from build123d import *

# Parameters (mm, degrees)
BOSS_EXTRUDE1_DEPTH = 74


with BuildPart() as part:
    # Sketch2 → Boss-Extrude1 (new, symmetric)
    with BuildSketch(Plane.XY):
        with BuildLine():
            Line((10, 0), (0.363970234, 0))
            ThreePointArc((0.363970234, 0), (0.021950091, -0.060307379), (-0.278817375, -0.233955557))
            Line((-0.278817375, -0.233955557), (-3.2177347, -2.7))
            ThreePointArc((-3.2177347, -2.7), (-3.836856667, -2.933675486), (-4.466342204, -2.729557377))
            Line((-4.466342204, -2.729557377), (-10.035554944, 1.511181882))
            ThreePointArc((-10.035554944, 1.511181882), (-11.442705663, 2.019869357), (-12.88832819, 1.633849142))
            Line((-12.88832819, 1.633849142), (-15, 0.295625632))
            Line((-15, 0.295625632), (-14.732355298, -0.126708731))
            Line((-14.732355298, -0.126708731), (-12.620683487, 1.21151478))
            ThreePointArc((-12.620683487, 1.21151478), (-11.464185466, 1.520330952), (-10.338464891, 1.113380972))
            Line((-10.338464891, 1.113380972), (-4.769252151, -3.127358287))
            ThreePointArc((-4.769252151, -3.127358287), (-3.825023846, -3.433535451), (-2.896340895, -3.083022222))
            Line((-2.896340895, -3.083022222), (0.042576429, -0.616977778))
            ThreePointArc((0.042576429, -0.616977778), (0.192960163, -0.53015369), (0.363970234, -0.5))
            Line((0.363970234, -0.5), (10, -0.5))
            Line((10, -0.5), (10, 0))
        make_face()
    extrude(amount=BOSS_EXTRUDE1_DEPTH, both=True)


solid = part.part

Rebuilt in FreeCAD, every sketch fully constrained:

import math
import FreeCAD as App
import Part
import Sketcher

V = App.Vector
Q = App.Units.Quantity

doc = App.newDocument("Part")
params = doc.addObject("Spreadsheet::Sheet", "Params")
for row, (alias, value) in enumerate([
    ("sketch1_radius", "1 mm"),
    ("sketch1_radius2", "2 mm"),
    ("sketch1_radius3", "2.5 mm"),
    ("sketch1_length", "7 mm"),
    ("sketch1_length2", "2.5 mm"),
    ("pad1_length", "148 mm"),
], start=1):
    params.set(f"A{row}", alias)
    params.set(f"B{row}", "=" + value)
    params.setAlias(f"B{row}", alias)

body = doc.addObject("PartDesign::Body", "Body")

# Sketch on XY plane
sketch1 = doc.addObject("Sketcher::SketchObject", "Sketch")
body.addObject(sketch1)
sketch1.AttachmentSupport = (doc.XY_Plane, [""])
sketch1.MapMode = "FlatFace"
sketch1.addGeometry([
    Part.LineSegment(V(10, 0, 0), V(0.36, 0, 0)),  # 0
    Part.ArcOfCircle(Part.Circle(V(0.36, -1, 0), V(0, 0, 1), 1), math.radians(90), math.radians(130)),  # 1
    Part.LineSegment(V(-0.28, -0.23, 0), V(-3.22, -2.7, 0)),  # 2
    Part.ArcOfCircle(Part.Circle(V(-3.86, -1.93, 0), V(0, 0, 1), 1), math.radians(-127), math.radians(-50)),  # 3
    Part.LineSegment(V(-4.47, -2.73, 0), V(-10.04, 1.51, 0)),  # 4
    Part.ArcOfCircle(Part.Circle(V(-11.55, -0.48, 0), V(0, 0, 1), 2.5), math.radians(53), math.radians(122)),  # 5
    Part.LineSegment(V(-12.89, 1.63, 0), V(-15, 0.3, 0)),  # 6
    Part.LineSegment(V(-15, 0.3, 0), V(-14.73, -0.13, 0)),  # 7
    Part.LineSegment(V(-14.73, -0.13, 0), V(-12.62, 1.21, 0)),  # 8
    Part.ArcOfCircle(Part.Circle(V(-11.55, -0.48, 0), V(0, 0, 1), 2), math.radians(53), math.radians(122)),  # 9
    Part.LineSegment(V(-10.34, 1.11, 0), V(-4.77, -3.13, 0)),  # 10
    Part.ArcOfCircle(Part.Circle(V(-3.86, -1.93, 0), V(0, 0, 1), 1.5), math.radians(-127), math.radians(-50)),  # 11
    Part.LineSegment(V(-2.9, -3.08, 0), V(0.04, -0.62, 0)),  # 12
    Part.ArcOfCircle(Part.Circle(V(0.36, -1, 0), V(0, 0, 1), 0.5), math.radians(90), math.radians(130)),  # 13
    Part.LineSegment(V(0.36, -0.5, 0), V(10, -0.5, 0)),  # 14
    Part.LineSegment(V(10, -0.5, 0), V(10, 0, 0)),  # 15
], False)
sketch1.addConstraint([
    Sketcher.Constraint("Tangent", 0, 2, 1, 1),
    Sketcher.Constraint("Tangent", 1, 2, 2, 1),
    Sketcher.Constraint("Tangent", 2, 2, 3, 2),
    Sketcher.Constraint("Tangent", 3, 1, 4, 1),
    Sketcher.Constraint("Tangent", 4, 2, 5, 1),
    Sketcher.Constraint("Tangent", 5, 2, 6, 1),
    Sketcher.Constraint("Coincident", 6, 2, 7, 1),
    Sketcher.Constraint("Coincident", 7, 2, 8, 1),
    Sketcher.Constraint("Tangent", 8, 2, 9, 2),
    Sketcher.Constraint("Tangent", 9, 1, 10, 1),
    Sketcher.Constraint("Tangent", 10, 2, 11, 1),
    Sketcher.Constraint("Tangent", 11, 2, 12, 1),
    Sketcher.Constraint("Tangent", 12, 2, 13, 2),
    Sketcher.Constraint("Tangent", 13, 1, 14, 1),
    Sketcher.Constraint("Coincident", 14, 2, 15, 1),
    Sketcher.Constraint("Coincident", 15, 2, 0, 1),
    Sketcher.Constraint("Horizontal", 0),
    Sketcher.Constraint("Horizontal", 14),
    Sketcher.Constraint("Vertical", 15),
    Sketcher.Constraint("Coincident", 9, 3, 5, 3),
    Sketcher.Constraint("Coincident", 11, 3, 3, 3),
    Sketcher.Constraint("Coincident", 13, 3, 1, 3),
    Sketcher.Constraint("Equal", 1, 3),
    Sketcher.Constraint("PointOnObject", 0, 2, -1),
    Sketcher.Constraint("Perpendicular", 6, 7),
    Sketcher.Constraint("Perpendicular", 7, 8),
    Sketcher.Constraint("Parallel", 4, 10),
    Sketcher.Constraint("Parallel", 2, 12),
    Sketcher.Constraint("Radius", 1, Q("1 mm")),
    Sketcher.Constraint("Radius", 9, Q("2 mm")),
    Sketcher.Constraint("Radius", 5, Q("2.5 mm")),
    Sketcher.Constraint("Angle", 2, Q("-140 deg")),
    Sketcher.Constraint("Distance", 4, Q("7 mm")),
    Sketcher.Constraint("DistanceX", 6, 2, -1, 1, Q("15 mm")),
    Sketcher.Constraint("DistanceX", -1, 1, 14, 2, Q("10 mm")),
    Sketcher.Constraint("Distance", 6, Q("2.5 mm")),
    Sketcher.Constraint("DistanceY", 2, 2, -1, 1, Q("2.7 mm")),
    Sketcher.Constraint("DistanceX", 3, 1, 11, 2, Q("1.570001 mm")),
    Sketcher.Constraint("DistanceX", 0, 2, 0, 1, Q("9.63603 mm")),
])
sketch1.setExpression("Constraints[28]", "Params.sketch1_radius")
sketch1.setExpression("Constraints[29]", "Params.sketch1_radius2")
sketch1.setExpression("Constraints[30]", "Params.sketch1_radius3")
sketch1.setExpression("Constraints[32]", "Params.sketch1_length")
sketch1.setExpression("Constraints[35]", "Params.sketch1_length2")
pad1 = doc.addObject("PartDesign::Pad", "Pad")
body.addObject(pad1)
pad1.Profile = sketch1
pad1.setExpression("Length", "Params.pad1_length")
pad1.Midplane = True

doc.recompute()
